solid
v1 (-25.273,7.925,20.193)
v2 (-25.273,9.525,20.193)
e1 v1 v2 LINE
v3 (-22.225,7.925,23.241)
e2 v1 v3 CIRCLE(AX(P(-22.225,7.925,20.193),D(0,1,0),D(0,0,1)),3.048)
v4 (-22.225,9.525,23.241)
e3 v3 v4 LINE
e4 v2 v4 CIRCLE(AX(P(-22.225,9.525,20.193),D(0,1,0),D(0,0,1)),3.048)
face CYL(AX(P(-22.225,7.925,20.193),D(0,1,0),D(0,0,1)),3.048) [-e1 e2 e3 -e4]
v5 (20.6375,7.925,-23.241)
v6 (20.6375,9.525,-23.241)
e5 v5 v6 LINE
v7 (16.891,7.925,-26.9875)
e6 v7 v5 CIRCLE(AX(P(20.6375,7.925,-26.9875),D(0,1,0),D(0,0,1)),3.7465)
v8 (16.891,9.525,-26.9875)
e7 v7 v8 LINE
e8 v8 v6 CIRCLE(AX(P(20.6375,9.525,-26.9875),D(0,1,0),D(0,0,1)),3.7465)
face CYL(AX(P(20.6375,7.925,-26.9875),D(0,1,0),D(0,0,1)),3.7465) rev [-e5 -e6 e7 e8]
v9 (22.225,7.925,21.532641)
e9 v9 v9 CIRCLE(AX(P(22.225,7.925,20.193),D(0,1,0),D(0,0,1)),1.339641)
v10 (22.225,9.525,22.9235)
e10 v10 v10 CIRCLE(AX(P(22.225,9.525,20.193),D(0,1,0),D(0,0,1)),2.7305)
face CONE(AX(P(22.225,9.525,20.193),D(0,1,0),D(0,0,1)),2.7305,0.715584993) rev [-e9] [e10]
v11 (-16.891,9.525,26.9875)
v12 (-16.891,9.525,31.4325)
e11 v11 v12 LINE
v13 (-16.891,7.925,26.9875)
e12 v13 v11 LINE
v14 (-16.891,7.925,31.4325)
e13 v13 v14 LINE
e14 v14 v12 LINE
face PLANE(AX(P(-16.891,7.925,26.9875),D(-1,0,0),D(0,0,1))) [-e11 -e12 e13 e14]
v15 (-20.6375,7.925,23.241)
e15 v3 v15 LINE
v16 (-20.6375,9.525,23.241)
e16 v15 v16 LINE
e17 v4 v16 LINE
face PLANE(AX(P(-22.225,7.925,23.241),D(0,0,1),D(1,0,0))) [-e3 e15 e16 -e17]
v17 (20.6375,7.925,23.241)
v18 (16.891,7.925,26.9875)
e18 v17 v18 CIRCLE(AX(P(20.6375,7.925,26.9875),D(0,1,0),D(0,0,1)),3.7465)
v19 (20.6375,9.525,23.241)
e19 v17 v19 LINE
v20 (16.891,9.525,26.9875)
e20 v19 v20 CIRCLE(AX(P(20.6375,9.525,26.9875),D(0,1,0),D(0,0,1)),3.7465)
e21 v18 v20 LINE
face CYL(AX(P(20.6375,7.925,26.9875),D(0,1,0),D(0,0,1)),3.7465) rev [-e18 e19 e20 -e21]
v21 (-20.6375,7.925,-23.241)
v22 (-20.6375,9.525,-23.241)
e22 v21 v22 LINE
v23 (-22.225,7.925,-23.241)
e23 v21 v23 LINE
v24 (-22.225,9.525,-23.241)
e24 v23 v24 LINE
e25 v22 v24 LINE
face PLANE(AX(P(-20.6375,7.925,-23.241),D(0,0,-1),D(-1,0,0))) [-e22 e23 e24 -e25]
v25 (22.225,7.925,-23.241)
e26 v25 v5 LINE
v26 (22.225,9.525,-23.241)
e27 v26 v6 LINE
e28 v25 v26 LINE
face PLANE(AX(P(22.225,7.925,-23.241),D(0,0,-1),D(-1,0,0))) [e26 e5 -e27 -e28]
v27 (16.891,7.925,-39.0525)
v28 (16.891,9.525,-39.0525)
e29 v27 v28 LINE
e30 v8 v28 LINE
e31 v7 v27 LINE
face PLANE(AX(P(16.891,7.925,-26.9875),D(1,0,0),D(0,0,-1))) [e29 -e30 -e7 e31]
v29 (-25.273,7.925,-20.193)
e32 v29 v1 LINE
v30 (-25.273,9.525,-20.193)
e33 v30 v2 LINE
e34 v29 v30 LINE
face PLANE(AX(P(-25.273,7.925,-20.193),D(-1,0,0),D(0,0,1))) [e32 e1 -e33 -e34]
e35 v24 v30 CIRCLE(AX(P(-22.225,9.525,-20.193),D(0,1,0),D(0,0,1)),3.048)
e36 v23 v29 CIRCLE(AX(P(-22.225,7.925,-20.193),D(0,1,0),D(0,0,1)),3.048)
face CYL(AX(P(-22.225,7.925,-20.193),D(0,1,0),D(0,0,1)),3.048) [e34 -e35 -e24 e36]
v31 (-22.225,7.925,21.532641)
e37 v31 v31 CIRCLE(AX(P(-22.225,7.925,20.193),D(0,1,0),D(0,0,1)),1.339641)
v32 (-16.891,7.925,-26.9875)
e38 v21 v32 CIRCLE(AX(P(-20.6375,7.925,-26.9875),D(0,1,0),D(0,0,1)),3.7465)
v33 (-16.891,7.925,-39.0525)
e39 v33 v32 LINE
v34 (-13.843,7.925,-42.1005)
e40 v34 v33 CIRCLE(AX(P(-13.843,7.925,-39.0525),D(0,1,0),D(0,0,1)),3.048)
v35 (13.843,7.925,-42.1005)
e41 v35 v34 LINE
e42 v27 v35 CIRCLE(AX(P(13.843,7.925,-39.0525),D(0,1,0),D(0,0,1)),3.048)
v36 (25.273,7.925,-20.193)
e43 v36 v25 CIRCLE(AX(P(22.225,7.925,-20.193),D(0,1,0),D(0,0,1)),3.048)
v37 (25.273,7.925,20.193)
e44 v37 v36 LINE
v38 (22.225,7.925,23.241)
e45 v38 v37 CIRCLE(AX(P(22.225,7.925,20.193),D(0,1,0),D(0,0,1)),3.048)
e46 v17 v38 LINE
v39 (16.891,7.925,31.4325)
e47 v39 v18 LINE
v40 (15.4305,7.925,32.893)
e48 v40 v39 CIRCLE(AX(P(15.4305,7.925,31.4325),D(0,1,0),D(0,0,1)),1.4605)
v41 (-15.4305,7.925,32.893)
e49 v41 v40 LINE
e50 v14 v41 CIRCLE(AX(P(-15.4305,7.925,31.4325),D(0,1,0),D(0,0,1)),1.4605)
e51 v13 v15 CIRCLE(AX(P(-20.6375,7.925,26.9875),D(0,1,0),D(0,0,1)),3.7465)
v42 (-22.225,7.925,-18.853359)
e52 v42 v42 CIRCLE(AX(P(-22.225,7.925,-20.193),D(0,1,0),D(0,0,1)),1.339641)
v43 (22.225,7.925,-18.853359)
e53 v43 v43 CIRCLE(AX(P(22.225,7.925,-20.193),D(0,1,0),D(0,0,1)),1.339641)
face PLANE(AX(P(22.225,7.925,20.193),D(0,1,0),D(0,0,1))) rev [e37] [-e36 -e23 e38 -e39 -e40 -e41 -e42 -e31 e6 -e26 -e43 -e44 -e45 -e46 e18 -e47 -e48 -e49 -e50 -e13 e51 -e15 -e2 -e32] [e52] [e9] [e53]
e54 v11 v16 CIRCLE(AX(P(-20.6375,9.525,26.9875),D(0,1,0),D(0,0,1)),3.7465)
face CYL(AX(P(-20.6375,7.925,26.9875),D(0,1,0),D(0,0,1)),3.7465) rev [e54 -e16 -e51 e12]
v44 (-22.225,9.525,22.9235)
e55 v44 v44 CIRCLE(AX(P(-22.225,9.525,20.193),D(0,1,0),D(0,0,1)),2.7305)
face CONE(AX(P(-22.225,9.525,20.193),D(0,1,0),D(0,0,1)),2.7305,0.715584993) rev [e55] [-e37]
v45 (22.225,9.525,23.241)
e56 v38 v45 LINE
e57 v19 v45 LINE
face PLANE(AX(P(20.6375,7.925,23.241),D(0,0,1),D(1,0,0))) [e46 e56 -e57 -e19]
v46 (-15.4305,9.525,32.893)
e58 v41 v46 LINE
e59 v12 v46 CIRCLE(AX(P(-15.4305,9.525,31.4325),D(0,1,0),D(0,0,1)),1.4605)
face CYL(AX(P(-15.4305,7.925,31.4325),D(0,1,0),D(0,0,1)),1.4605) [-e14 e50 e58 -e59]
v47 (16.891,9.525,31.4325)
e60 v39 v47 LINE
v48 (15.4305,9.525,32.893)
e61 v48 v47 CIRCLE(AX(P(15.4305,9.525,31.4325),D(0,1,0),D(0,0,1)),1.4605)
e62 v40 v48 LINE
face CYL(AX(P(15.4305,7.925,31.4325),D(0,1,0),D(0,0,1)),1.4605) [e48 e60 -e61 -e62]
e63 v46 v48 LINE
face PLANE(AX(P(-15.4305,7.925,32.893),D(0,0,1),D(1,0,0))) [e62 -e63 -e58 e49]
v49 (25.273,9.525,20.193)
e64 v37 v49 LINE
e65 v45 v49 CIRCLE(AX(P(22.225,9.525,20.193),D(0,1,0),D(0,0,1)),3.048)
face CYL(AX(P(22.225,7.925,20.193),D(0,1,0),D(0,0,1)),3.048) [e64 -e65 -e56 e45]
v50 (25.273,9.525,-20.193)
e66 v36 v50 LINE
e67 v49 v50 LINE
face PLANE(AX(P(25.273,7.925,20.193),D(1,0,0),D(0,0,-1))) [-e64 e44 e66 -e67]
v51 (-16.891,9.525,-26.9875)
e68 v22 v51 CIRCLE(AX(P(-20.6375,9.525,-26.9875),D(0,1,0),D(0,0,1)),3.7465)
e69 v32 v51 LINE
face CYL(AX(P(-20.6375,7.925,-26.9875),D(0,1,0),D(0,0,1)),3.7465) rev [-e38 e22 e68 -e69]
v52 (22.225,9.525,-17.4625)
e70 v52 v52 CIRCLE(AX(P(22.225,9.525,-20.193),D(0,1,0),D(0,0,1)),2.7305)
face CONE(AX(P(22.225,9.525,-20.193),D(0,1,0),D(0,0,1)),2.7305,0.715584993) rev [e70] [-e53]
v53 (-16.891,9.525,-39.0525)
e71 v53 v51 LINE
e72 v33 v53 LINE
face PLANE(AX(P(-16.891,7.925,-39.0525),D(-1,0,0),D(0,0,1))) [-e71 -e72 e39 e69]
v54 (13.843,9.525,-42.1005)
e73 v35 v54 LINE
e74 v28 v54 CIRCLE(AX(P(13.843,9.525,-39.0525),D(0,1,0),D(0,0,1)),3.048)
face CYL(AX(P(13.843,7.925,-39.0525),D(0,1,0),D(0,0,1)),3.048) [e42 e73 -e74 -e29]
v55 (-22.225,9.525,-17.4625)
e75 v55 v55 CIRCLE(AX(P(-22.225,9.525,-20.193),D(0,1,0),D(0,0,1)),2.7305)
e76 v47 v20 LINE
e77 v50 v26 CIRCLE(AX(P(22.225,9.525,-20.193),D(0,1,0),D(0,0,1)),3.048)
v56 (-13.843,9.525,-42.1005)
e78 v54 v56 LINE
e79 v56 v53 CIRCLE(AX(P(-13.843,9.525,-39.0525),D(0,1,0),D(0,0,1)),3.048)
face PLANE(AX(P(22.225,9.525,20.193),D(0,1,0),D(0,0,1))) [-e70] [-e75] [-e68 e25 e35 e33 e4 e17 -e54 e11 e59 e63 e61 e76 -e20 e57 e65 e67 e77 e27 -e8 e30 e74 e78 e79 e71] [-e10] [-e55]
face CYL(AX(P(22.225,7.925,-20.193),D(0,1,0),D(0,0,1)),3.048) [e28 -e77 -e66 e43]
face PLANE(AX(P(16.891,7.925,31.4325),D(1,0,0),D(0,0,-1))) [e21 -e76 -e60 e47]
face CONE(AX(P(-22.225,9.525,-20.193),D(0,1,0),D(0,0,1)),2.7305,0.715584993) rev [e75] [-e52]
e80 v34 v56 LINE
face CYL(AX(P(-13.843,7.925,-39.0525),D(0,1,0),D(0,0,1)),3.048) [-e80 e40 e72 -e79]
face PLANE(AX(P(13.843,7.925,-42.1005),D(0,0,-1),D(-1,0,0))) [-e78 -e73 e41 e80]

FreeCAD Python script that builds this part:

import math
import FreeCAD as App
import Part
import Sketcher
from FreeCAD import Vector
Q = App.Units.Quantity

doc = App.newDocument("Part")
body = doc.addObject("PartDesign::Body", "Body")

# Sketch on XZ plane
sketch1 = doc.addObject("Sketcher::SketchObject", "Sketch")
body.addObject(sketch1)
sketch1.AttachmentSupport = (doc.XZ_Plane, [""])
sketch1.MapMode = "FlatFace"
sketch1.AttachmentOffset = App.Placement(Vector(0, 0, -0.375 * 25.4), App.Rotation())
sketch1.addGeometry(Part.LineSegment(Vector(-16.891, -39.0525, 0), Vector(-16.891, -26.9875, 0)), False)
sketch1.addGeometry(Part.ArcOfCircle(Part.Circle(Vector(-20.6375, -26.9875, 0), Vector(0, 0, 1), 3.7465), math.radians(0), math.radians(90)), False)
sketch1.addGeometry(Part.LineSegment(Vector(-20.6375, -23.241, 0), Vector(-22.225, -23.241, 0)), False)
sketch1.addGeometry(Part.ArcOfCircle(Part.Circle(Vector(-22.225, -20.193, 0), Vector(0, 0, 1), 3.048), math.radians(180), math.radians(270)), False)
sketch1.addGeometry(Part.LineSegment(Vector(-25.273, -20.193, 0), Vector(-25.273, 20.193, 0)), False)
sketch1.addGeometry(Part.ArcOfCircle(Part.Circle(Vector(-22.225, 20.193, 0), Vector(0, 0, 1), 3.048), math.radians(90), math.radians(180)), False)
sketch1.addGeometry(Part.LineSegment(Vector(-22.225, 23.241, 0), Vector(-20.6375, 23.241, 0)), False)
sketch1.addGeometry(Part.ArcOfCircle(Part.Circle(Vector(-20.6375, 26.9875, 0), Vector(0, 0, 1), 3.7465), math.radians(-90), math.radians(0)), False)
sketch1.addGeometry(Part.LineSegment(Vector(-16.891, 26.9875, 0), Vector(-16.891, 31.4325, 0)), False)
sketch1.addGeometry(Part.ArcOfCircle(Part.Circle(Vector(-15.4305, 31.4325, 0), Vector(0, 0, 1), 1.4605), math.radians(90), math.radians(180)), False)
sketch1.addGeometry(Part.LineSegment(Vector(-15.4305, 32.893, 0), Vector(15.4305, 32.893, 0)), False)
sketch1.addGeometry(Part.ArcOfCircle(Part.Circle(Vector(15.4305, 31.4325, 0), Vector(0, 0, 1), 1.4605), math.radians(0), math.radians(90)), False)
sketch1.addGeometry(Part.LineSegment(Vector(16.891, 31.4325, 0), Vector(16.891, 26.9875, 0)), False)
sketch1.addGeometry(Part.ArcOfCircle(Part.Circle(Vector(20.6375, 26.9875, 0), Vector(0, 0, 1), 3.7465), math.radians(180), math.radians(270)), False)
sketch1.addGeometry(Part.LineSegment(Vector(20.6375, 23.241, 0), Vector(22.225, 23.241, 0)), False)
sketch1.addGeometry(Part.ArcOfCircle(Part.Circle(Vector(22.225, 20.193, 0), Vector(0, 0, 1), 3.048), math.radians(0), math.radians(90)), False)
sketch1.addGeometry(Part.LineSegment(Vector(25.273, 20.193, 0), Vector(25.273, -20.193, 0)), False)
sketch1.addGeometry(Part.ArcOfCircle(Part.Circle(Vector(22.225, -20.193, 0), Vector(0, 0, 1), 3.048), math.radians(-90), math.radians(0)), False)
sketch1.addGeometry(Part.LineSegment(Vector(22.225, -23.241, 0), Vector(20.6375, -23.241, 0)), False)
sketch1.addGeometry(Part.ArcOfCircle(Part.Circle(Vector(20.6375, -26.9875, 0), Vector(0, 0, 1), 3.7465), math.radians(90), math.radians(180)), False)
sketch1.addGeometry(Part.LineSegment(Vector(16.891, -26.9875, 0), Vector(16.891, -39.0525, 0)), False)
sketch1.addGeometry(Part.ArcOfCircle(Part.Circle(Vector(13.843, -39.0525, 0), Vector(0, 0, 1), 3.048), math.radians(-90), math.radians(0)), False)
sketch1.addGeometry(Part.LineSegment(Vector(13.843, -42.1005, 0), Vector(-13.843, -42.1005, 0)), False)
sketch1.addGeometry(Part.ArcOfCircle(Part.Circle(Vector(-13.843, -39.0525, 0), Vector(0, 0, 1), 3.048), math.radians(180), math.radians(270)), False)
sketch1.addConstraint(Sketcher.Constraint("Tangent", 0, 2, 1, 1))
sketch1.addConstraint(Sketcher.Constraint("Tangent", 1, 2, 2, 1))
sketch1.addConstraint(Sketcher.Constraint("Tangent", 2, 2, 3, 2))
sketch1.addConstraint(Sketcher.Constraint("Tangent", 3, 1, 4, 1))
sketch1.addConstraint(Sketcher.Constraint("Tangent", 4, 2, 5, 2))
sketch1.addConstraint(Sketcher.Constraint("Tangent", 5, 1, 6, 1))
sketch1.addConstraint(Sketcher.Constraint("Tangent", 6, 2, 7, 1))
sketch1.addConstraint(Sketcher.Constraint("Tangent", 7, 2, 8, 1))
sketch1.addConstraint(Sketcher.Constraint("Tangent", 8, 2, 9, 2))
sketch1.addConstraint(Sketcher.Constraint("Tangent", 9, 1, 10, 1))
sketch1.addConstraint(Sketcher.Constraint("Tangent", 10, 2, 11, 2))
sketch1.addConstraint(Sketcher.Constraint("Tangent", 11, 1, 12, 1))
sketch1.addConstraint(Sketcher.Constraint("Tangent", 12, 2, 13, 1))
sketch1.addConstraint(Sketcher.Constraint("Tangent", 13, 2, 14, 1))
sketch1.addConstraint(Sketcher.Constraint("Tangent", 14, 2, 15, 2))
sketch1.addConstraint(Sketcher.Constraint("Tangent", 15, 1, 16, 1))
sketch1.addConstraint(Sketcher.Constraint("Tangent", 16, 2, 17, 2))
sketch1.addConstraint(Sketcher.Constraint("Tangent", 17, 1, 18, 1))
sketch1.addConstraint(Sketcher.Constraint("Tangent", 18, 2, 19, 1))
sketch1.addConstraint(Sketcher.Constraint("Tangent", 19, 2, 20, 1))
sketch1.addConstraint(Sketcher.Constraint("Tangent", 20, 2, 21, 2))
sketch1.addConstraint(Sketcher.Constraint("Tangent", 21, 1, 22, 1))
sketch1.addConstraint(Sketcher.Constraint("Tangent", 22, 2, 23, 2))
sketch1.addConstraint(Sketcher.Constraint("Tangent", 23, 1, 0, 1))
sketch1.addConstraint(Sketcher.Constraint("Vertical", 0))
sketch1.addConstraint(Sketcher.Constraint("Horizontal", 2))
sketch1.addConstraint(Sketcher.Constraint("Vertical", 4))
sketch1.addConstraint(Sketcher.Constraint("Horizontal", 6))
sketch1.addConstraint(Sketcher.Constraint("Vertical", 8))
sketch1.addConstraint(Sketcher.Constraint("Horizontal", 10))
sketch1.addConstraint(Sketcher.Constraint("Vertical", 12))
sketch1.addConstraint(Sketcher.Constraint("Horizontal", 14))
sketch1.addConstraint(Sketcher.Constraint("Vertical", 16))
sketch1.addConstraint(Sketcher.Constraint("Horizontal", 18))
sketch1.addConstraint(Sketcher.Constraint("Vertical", 20))
sketch1.addConstraint(Sketcher.Constraint("Horizontal", 22))
sketch1.addConstraint(Sketcher.Constraint("Equal", 3, 5))
sketch1.addConstraint(Sketcher.Constraint("Equal", 1, 7))
sketch1.addConstraint(Sketcher.Constraint("Equal", 9, 11))
sketch1.addConstraint(Sketcher.Constraint("Equal", 7, 13))
sketch1.addConstraint(Sketcher.Constraint("Equal", 5, 15))
sketch1.addConstraint(Sketcher.Constraint("Equal", 15, 17))
sketch1.addConstraint(Sketcher.Constraint("Equal", 13, 19))
sketch1.addConstraint(Sketcher.Constraint("Equal", 17, 21))
sketch1.addConstraint(Sketcher.Constraint("Equal", 21, 23))
sketch1.addConstraint(Sketcher.Constraint("Symmetric", 1, 3, 13, 3, -1, 1))
sketch1.addConstraint(Sketcher.Constraint("Symmetric", 5, 3, 17, 3, -1, 1))
sketch1.addConstraint(Sketcher.Constraint("Symmetric", 7, 3, 13, 3, -2))
sketch1.addConstraint(Sketcher.Constraint("Vertical", 13, 3, 19, 3))
sketch1.addConstraint(Sketcher.Constraint("Radius", 3, Q("0.12 in")))
sketch1.addConstraint(Sketcher.Constraint("DistanceX", 22, 2, 22, 1, Q("1.09 in")))
sketch1.addConstraint(Sketcher.Constraint("DistanceY", 4, 1, 4, 2, Q("1.59 in")))
sketch1.addConstraint(Sketcher.Constraint("Radius", 1, Q("0.1475 in")))
sketch1.addConstraint(Sketcher.Constraint("Radius", 9, Q("0.0575 in")))
sketch1.addConstraint(Sketcher.Constraint("DistanceY", 1, 3, 9, 3, Q("2.3 in")))
sketch1.addConstraint(Sketcher.Constraint("DistanceX", 2, 2, 2, 1, Q("0.0625 in")))
sketch1.addConstraint(Sketcher.Constraint("DistanceY", 0, 1, 0, 2, Q("0.475 in")))
pad1 = doc.addObject("PartDesign::Pad", "Pad")
body.addObject(pad1)
pad1.Profile = sketch1
pad1.Length = 1.6

# Sketch on XZ plane
sketch2 = doc.addObject("Sketcher::SketchObject", "Sketch001")
body.addObject(sketch2)
sketch2.AttachmentSupport = (doc.XZ_Plane, [""])
sketch2.MapMode = "FlatFace"
sketch2.AttachmentOffset = App.Placement(Vector(0, 0, -0.375 * 25.4), App.Rotation())
sketch2.addGeometry(Part.Circle(Vector(22.225, 20.193, 0), Vector(0, 0, 1), 1.2192), False)
sketch2.addGeometry(Part.Circle(Vector(-22.225, 20.193, 0), Vector(0, 0, 1), 1.2192), False)
sketch2.addGeometry(Part.Circle(Vector(-22.225, -20.193, 0), Vector(0, 0, 1), 1.2192), False)
sketch2.addGeometry(Part.Circle(Vector(22.225, -20.193, 0), Vector(0, 0, 1), 1.2192), False)
sketch2.addConstraint(Sketcher.Constraint("Equal", 0, 1))
sketch2.addConstraint(Sketcher.Constraint("Equal", 1, 2))
sketch2.addConstraint(Sketcher.Constraint("Equal", 2, 3))
sketch2.addConstraint(Sketcher.Constraint("Symmetric", 0, 3, 2, 3, -1, 1))
sketch2.addConstraint(Sketcher.Constraint("Symmetric", 1, 3, 3, 3, -1, 1))
sketch2.addConstraint(Sketcher.Constraint("Symmetric", 0, 3, 1, 3, -2))
sketch2.addConstraint(Sketcher.Constraint("Diameter", 0, Q("0.096 in")))
sketch2.addConstraint(Sketcher.Constraint("DistanceX", 1, 3, 0, 3, Q("1.75 in")))
sketch2.addConstraint(Sketcher.Constraint("DistanceY", 2, 3, 1, 3, Q("1.59 in")))
doc.recompute()
hole = doc.addObject("PartDesign::Hole", "Hole")
body.addObject(hole)
hole.Profile = sketch2
hole.ThreadType = "None"
hole.Diameter = Q("0.096 in")
hole.DepthType = "Dimension"
hole.Depth = Q("0.22 in")
hole.DrillPoint = "Angled"
hole.DrillPointAngle = 118
hole.HoleCutType = "Countersink"
hole.HoleCutDiameter = Q("0.215 in")
hole.HoleCutCountersinkAngle = 82
hole.Reversed = True

doc.recompute()
